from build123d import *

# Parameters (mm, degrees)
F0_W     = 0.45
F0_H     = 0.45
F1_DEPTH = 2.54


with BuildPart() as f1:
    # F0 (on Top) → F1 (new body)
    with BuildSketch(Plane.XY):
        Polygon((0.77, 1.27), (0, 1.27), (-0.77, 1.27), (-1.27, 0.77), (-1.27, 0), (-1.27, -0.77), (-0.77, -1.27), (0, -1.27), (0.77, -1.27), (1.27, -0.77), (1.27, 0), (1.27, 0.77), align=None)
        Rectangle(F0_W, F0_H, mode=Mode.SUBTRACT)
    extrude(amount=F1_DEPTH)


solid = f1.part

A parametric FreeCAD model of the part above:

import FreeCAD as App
import Part
import Sketcher

V = App.Vector
Q = App.Units.Quantity


def add_polygon(sketch, points):
    """Adds a closed chain of lines whose ends are joined by coincident constraints."""
    first, n = sketch.GeometryCount, len(points)
    for a, b in zip(points, points[1:] + points[:1]):
        sketch.addGeometry(Part.LineSegment(App.Vector(*a, 0), App.Vector(*b, 0)), False)
    for i in range(n):
        sketch.addConstraint(Sketcher.Constraint("Coincident", first + i, 2, first + (i + 1) % n, 1))

doc = App.newDocument("Part")
body = doc.addObject("PartDesign::Body", "Body")

# Sketch on XY plane
sketch1 = body.newObject("Sketcher::SketchObject", "Sketch")
sketch1.AttachmentSupport = (doc.getObject("XY_Plane"), [""])
sketch1.MapMode = "FlatFace"
add_polygon(sketch1, [(0.77, 1.27), (-0.77, 1.27), (-1.27, 0.77), (-1.27, -0.77), (-0.77, -1.27), (0.77, -1.27), (1.27, -0.77), (1.27, 0.77)])  # lines 0-7
add_polygon(sketch1, [(0.23, -0.23), (-0.23, -0.23), (-0.23, 0.23), (0.23, 0.23)])  # lines 8-11
sketch1.addConstraint([
    Sketcher.Constraint("Horizontal", 0),
    Sketcher.Constraint("Vertical", 2),
    Sketcher.Constraint("Horizontal", 4),
    Sketcher.Constraint("Vertical", 6),
    Sketcher.Constraint("Horizontal", 8),
    Sketcher.Constraint("Vertical", 9),
    Sketcher.Constraint("Horizontal", 10),
    Sketcher.Constraint("Vertical", 11),
    Sketcher.Constraint("Symmetric", 0, 2, 4, 2, -1, 1),
    Sketcher.Constraint("Symmetric", 1, 2, 5, 2, -1, 1),
    Sketcher.Constraint("Symmetric", 8, 2, 10, 2, -1, 1),
    Sketcher.Constraint("Perpendicular", 1, 3),
    Sketcher.Constraint("Perpendicular", 5, 7),
    Sketcher.Constraint("Horizontal", 2, 2, 5, 2),
    Sketcher.Constraint("Horizontal", 1, 2, 6, 2),
    Sketcher.Constraint("Vertical", 0, 2, 3, 2),
    Sketcher.Constraint("Equal", 4, 2),
    Sketcher.Constraint("Equal", 10, 9),
    Sketcher.Constraint("DistanceY", 3, 2, 0, 2, Q("0.1 in")),
    Sketcher.Constraint("DistanceX", 0, 2, 0, 1, Q("1.54 mm")),
    Sketcher.Constraint("DistanceX", 8, 2, 8, 1, Q("0.45 mm")),
])
pad1 = body.newObject("PartDesign::Pad", "Pad")
pad1.Profile = sketch1
pad1.Length = Q("0.1 in")

doc.recompute()
